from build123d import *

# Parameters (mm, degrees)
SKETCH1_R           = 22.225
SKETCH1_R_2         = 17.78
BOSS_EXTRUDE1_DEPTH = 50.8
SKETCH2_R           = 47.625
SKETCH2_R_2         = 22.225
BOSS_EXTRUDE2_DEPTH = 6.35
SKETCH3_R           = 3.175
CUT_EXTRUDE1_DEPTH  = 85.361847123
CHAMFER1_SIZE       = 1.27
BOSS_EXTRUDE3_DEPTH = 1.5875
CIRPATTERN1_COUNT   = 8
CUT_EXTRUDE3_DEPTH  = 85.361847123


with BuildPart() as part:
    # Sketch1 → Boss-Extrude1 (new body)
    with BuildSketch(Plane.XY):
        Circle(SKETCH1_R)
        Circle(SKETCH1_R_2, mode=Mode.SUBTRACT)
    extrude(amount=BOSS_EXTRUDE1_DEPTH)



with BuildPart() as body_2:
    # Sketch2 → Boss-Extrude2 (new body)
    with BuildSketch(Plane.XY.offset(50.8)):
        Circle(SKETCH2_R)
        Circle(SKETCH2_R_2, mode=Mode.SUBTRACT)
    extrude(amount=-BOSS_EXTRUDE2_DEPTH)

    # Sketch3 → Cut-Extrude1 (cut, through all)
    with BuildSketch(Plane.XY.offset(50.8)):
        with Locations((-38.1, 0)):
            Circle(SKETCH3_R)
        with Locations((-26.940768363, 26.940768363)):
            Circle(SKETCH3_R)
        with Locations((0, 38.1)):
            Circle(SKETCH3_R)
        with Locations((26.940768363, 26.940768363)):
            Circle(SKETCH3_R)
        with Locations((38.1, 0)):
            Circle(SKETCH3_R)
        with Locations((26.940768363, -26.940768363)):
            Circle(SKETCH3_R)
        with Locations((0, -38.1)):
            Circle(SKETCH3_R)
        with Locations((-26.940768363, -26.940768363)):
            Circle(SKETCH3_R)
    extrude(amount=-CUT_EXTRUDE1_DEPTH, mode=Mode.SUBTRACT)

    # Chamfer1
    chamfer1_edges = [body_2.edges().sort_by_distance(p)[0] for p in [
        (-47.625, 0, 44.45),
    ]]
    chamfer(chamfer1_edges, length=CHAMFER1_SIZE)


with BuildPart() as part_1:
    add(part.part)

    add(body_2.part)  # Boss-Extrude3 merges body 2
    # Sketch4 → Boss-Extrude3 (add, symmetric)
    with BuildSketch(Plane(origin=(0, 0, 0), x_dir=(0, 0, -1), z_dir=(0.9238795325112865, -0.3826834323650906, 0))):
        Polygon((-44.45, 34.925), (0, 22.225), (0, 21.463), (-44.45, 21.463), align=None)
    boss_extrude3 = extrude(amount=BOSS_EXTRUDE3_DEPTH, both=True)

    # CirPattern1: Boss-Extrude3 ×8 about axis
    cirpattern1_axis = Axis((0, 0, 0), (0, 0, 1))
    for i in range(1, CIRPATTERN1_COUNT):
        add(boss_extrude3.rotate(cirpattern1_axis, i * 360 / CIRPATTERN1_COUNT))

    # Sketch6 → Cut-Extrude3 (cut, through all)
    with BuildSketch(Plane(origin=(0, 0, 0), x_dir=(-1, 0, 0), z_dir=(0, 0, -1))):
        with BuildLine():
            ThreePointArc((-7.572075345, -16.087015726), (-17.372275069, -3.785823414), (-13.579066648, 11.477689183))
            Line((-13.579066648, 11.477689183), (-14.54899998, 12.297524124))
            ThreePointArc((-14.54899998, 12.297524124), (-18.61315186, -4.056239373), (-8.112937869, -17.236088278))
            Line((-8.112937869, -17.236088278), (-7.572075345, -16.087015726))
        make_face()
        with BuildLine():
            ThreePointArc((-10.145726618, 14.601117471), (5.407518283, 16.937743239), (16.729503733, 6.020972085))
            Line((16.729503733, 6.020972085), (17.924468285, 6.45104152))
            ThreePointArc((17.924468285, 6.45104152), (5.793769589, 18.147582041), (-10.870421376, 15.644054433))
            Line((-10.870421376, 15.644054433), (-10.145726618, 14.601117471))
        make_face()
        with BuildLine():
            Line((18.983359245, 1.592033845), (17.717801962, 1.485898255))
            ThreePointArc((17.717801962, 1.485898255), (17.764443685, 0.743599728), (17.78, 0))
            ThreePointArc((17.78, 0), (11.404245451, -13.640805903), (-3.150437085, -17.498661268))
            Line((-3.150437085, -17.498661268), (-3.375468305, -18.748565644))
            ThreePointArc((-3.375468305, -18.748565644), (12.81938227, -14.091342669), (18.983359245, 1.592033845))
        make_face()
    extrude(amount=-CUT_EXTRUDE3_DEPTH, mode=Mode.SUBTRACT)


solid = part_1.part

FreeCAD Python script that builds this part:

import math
import FreeCAD as App
import Part
import Sketcher

V = App.Vector
Q = App.Units.Quantity


def edges_at(feature, points):
    """Names of the edges that pass closest to the given points."""
    edges = feature.Shape.Edges
    near = lambda p: min(range(len(edges)), key=lambda i: edges[i].distToShape(Part.Vertex(*p))[0])
    return sorted({f"Edge{near(p) + 1}" for p in points})

doc = App.newDocument("Part")
body = doc.addObject("PartDesign::Body", "Body")

# Sketch on XY plane
sketch1 = body.newObject("Sketcher::SketchObject", "Sketch")
sketch1.AttachmentSupport = (doc.getObject("XY_Plane"), [""])
sketch1.MapMode = "FlatFace"
sketch1.addGeometry(Part.Circle(V(0, 0, 0), V(0, 0, 1), 22), False)
sketch1.addGeometry(Part.Circle(V(0, 0, 0), V(0, 0, 1), 18), False)
sketch1.addConstraint(Sketcher.Constraint("Coincident", 0, 3, -1, 1))
sketch1.addConstraint(Sketcher.Constraint("Coincident", 1, 3, -1, 1))
sketch1.addConstraint(Sketcher.Constraint("Diameter", 1, Q("1.4 in")))
sketch1.addConstraint(Sketcher.Constraint("Diameter", 0, Q("1.75 in")))
pad1 = body.newObject("PartDesign::Pad", "Pad")
pad1.Profile = sketch1
pad1.Length = Q("2 in")
body2 = doc.addObject("PartDesign::Body", "Body001")

# Sketch on XY plane
sketch2 = body2.newObject("Sketcher::SketchObject", "Sketch001")
sketch2.AttachmentSupport = (doc.getObject("XY_Plane001"), [""])
sketch2.MapMode = "FlatFace"
sketch2.AttachmentOffset = App.Placement(V(0, 0, 2 * 25.4), App.Rotation())
sketch2.addGeometry(Part.Circle(V(0, 0, 0), V(0, 0, 1), 48), False)
sketch2.addGeometry(Part.Circle(V(0, 0, 0), V(0, 0, 1), 22), False)
sketch2.addConstraint(Sketcher.Constraint("Coincident", 0, 3, -1, 1))
sketch2.addConstraint(Sketcher.Constraint("Coincident", 1, 3, -1, 1))
sketch2.addConstraint(Sketcher.Constraint("Diameter", 0, Q("3.75 in")))
sketch2.addConstraint(Sketcher.Constraint("Diameter", 1, Q("1.75 in")))
pad2 = body2.newObject("PartDesign::Pad", "Pad001")
pad2.Profile = sketch2
pad2.Length = Q("0.25 in")
pad2.Reversed = True

# Sketch on XY plane
sketch3 = body2.newObject("Sketcher::SketchObject", "Sketch002")
sketch3.AttachmentSupport = (doc.getObject("XY_Plane001"), [""])
sketch3.MapMode = "FlatFace"
sketch3.AttachmentOffset = App.Placement(V(0, 0, 2 * 25.4), App.Rotation())
sketch3.addGeometry(Part.Circle(V(-38.1, 0, 0), V(0, 0, 1), 3.2), False)
sketch3.addGeometry(Part.Circle(V(-26.9, 26.9, 0), V(0, 0, 1), 3.2), False)
sketch3.addGeometry(Part.Circle(V(0, 38.1, 0), V(0, 0, 1), 3.2), False)
sketch3.addGeometry(Part.Circle(V(26.9, 26.9, 0), V(0, 0, 1), 3.2), False)
sketch3.addGeometry(Part.Circle(V(38.1, 0, 0), V(0, 0, 1), 3.2), False)
sketch3.addGeometry(Part.Circle(V(26.9, -26.9, 0), V(0, 0, 1), 3.2), False)
sketch3.addGeometry(Part.Circle(V(0, -38.1, 0), V(0, 0, 1), 3.2), False)
sketch3.addGeometry(Part.Circle(V(-26.9, -26.9, 0), V(0, 0, 1), 3.2), False)
sketch3.addConstraint(Sketcher.Constraint("Equal", 0, 1))
sketch3.addConstraint(Sketcher.Constraint("Equal", 1, 2))
sketch3.addConstraint(Sketcher.Constraint("Equal", 2, 3))
sketch3.addConstraint(Sketcher.Constraint("Equal", 3, 4))
sketch3.addConstraint(Sketcher.Constraint("Equal", 4, 5))
sketch3.addConstraint(Sketcher.Constraint("Equal", 5, 6))
sketch3.addConstraint(Sketcher.Constraint("Equal", 6, 7))
sketch3.addConstraint(Sketcher.Constraint("Symmetric", 0, 3, 4, 3, -1, 1))
sketch3.addConstraint(Sketcher.Constraint("Symmetric", 1, 3, 5, 3, -1, 1))
sketch3.addConstraint(Sketcher.Constraint("Symmetric", 2, 3, 6, 3, -1, 1))
sketch3.addConstraint(Sketcher.Constraint("Symmetric", 3, 3, 7, 3, -1, 1))
sketch3.addConstraint(Sketcher.Constraint("Symmetric", 1, 3, 3, 3, -2))
sketch3.addConstraint(Sketcher.Constraint("PointOnObject", 0, 3, -1))
sketch3.addConstraint(Sketcher.Constraint("PointOnObject", 2, 3, -2))
sketch3.addConstraint(Sketcher.Constraint("Diameter", 0, Q("0.25 in")))
sketch3.addConstraint(Sketcher.Constraint("DistanceX", 0, 3, 4, 3, Q("3 in")))
sketch3.addConstraint(Sketcher.Constraint("DistanceY", -1, 1, 2, 3, Q("1.5 in")))
sketch3.addConstraint(Sketcher.Constraint("DistanceX", 1, 3, -1, 1, 26.940768))
sketch3.addConstraint(Sketcher.Constraint("DistanceY", -1, 1, 1, 3, 26.940768))
pocket1 = body2.newObject("PartDesign::Pocket", "Pocket")
pocket1.Profile = sketch3
pocket1.Type = "ThroughAll"
doc.recompute()

chamfer = body2.newObject("PartDesign::Chamfer", "Chamfer")
chamfer.Base = (pocket1, edges_at(pocket1, [(-47.625, 0, 44.45)]))
chamfer.Size = Q("0.05 in")
doc.recompute()

boolean = body.newObject("PartDesign::Boolean", "Boolean")
boolean.Type = "Fuse"
boolean.addObjects([body2])

# Sketch on an angled plane
sketch4 = body.newObject("Sketcher::SketchObject", "Sketch003")
sketch4.Placement = App.Placement(V(0, 0, 0), App.Rotation(V(0, 0, -1), V(0.382683432, 0.923879533, 0), V(0.923879533, -0.382683432, 0), "ZXY"))
sketch4.addGeometry(Part.LineSegment(V(0, 22.2, 0), V(-44.5, 34.9, 0)), False)
sketch4.addGeometry(Part.LineSegment(V(-44.5, 34.9, 0), V(-44.5, 21.5, 0)), False)
sketch4.addGeometry(Part.LineSegment(V(-44.5, 21.5, 0), V(0, 21.5, 0)), False)
sketch4.addGeometry(Part.LineSegment(V(0, 21.5, 0), V(0, 22.2, 0)), False)
sketch4.addConstraint(Sketcher.Constraint("Coincident", 0, 2, 1, 1))
sketch4.addConstraint(Sketcher.Constraint("Coincident", 1, 2, 2, 1))
sketch4.addConstraint(Sketcher.Constraint("Coincident", 2, 2, 3, 1))
sketch4.addConstraint(Sketcher.Constraint("Coincident", 3, 2, 0, 1))
sketch4.addConstraint(Sketcher.Constraint("Vertical", 1))
sketch4.addConstraint(Sketcher.Constraint("Horizontal", 2))
sketch4.addConstraint(Sketcher.Constraint("Vertical", 3))
sketch4.addConstraint(Sketcher.Constraint("PointOnObject", 2, 2, -2))
sketch4.addConstraint(Sketcher.Constraint("DistanceX", 2, 1, 2, 2, Q("1.75 in")))
sketch4.addConstraint(Sketcher.Constraint("DistanceY", 1, 2, 1, 1, Q("0.53 in")))
sketch4.addConstraint(Sketcher.Constraint("DistanceY", 3, 1, 3, 2, Q("0.03 in")))
sketch4.addConstraint(Sketcher.Constraint("DistanceY", -1, 1, 0, 2, Q("1.375 in")))
pad3 = body.newObject("PartDesign::Pad", "Pad002")
pad3.Profile = sketch4
pad3.Length = Q("0.125 in")
pad3.Midplane = True
doc.recompute()

polarpattern = body.newObject("PartDesign::PolarPattern", "PolarPattern")
polarpattern.Originals = [pad3]
polarpattern.Axis = (doc.getObject("Z_Axis"), [""])
polarpattern.Angle = 360
polarpattern.Occurrences = 8
body.Tip = polarpattern

# Sketch on XY plane
sketch5 = body.newObject("Sketcher::SketchObject", "Sketch004")
sketch5.AttachmentSupport = (doc.getObject("XY_Plane"), [""])
sketch5.MapMode = "FlatFace"
sketch5.addGeometry(Part.ArcOfCircle(Part.Circle(V(0, 0, 0), V(0, 0, 1), 17.8), math.radians(-65), math.radians(40)), False)
sketch5.addGeometry(Part.LineSegment(V(13.6, 11.5, 0), V(14.5, 12.3, 0)), False)
sketch5.addGeometry(Part.ArcOfCircle(Part.Circle(V(0, 0, 0), V(0, 0, 1), 19), math.radians(-65), math.radians(40)), False)
sketch5.addGeometry(Part.LineSegment(V(8.1, -17.2, 0), V(7.6, -16.1, 0)), False)
sketch5.addGeometry(Part.ArcOfCircle(Part.Circle(V(0, 0, 0), V(0, 0, 1), 17.8), math.radians(55), math.radians(160)), False)
sketch5.addGeometry(Part.LineSegment(V(-16.7, 6, 0), V(-17.9, 6.5, 0)), False)
sketch5.addGeometry(Part.ArcOfCircle(Part.Circle(V(0, 0, 0), V(0, 0, 1), 19.1), math.radians(55), math.radians(160)), False)
sketch5.addGeometry(Part.LineSegment(V(10.9, 15.6, 0), V(10.1, 14.6, 0)), False)
sketch5.addGeometry(Part.LineSegment(V(-19, 1.6, 0), V(-17.7, 1.5, 0)), False)
sketch5.addGeometry(Part.ArcOfCircle(Part.Circle(V(0, 0, 0), V(0, 0, 1), 17.8), math.radians(175.21), math.radians(180)), False)
sketch5.addGeometry(Part.ArcOfCircle(Part.Circle(V(0, 0, 0), V(0, 0, 1), 17.8), math.radians(-180), math.radians(-80)), False)
sketch5.addGeometry(Part.LineSegment(V(3.2, -17.5, 0), V(3.4, -18.7, 0)), False)
sketch5.addGeometry(Part.ArcOfCircle(Part.Circle(V(0, 0, 0), V(0, 0, 1), 19), math.radians(175), math.radians(280)), False)
sketch5.addConstraint(Sketcher.Constraint("Coincident", 0, 2, 1, 1))
sketch5.addConstraint(Sketcher.Constraint("Coincident", 1, 2, 2, 2))
sketch5.addConstraint(Sketcher.Constraint("Coincident", 2, 1, 3, 1))
sketch5.addConstraint(Sketcher.Constraint("Coincident", 3, 2, 0, 1))
sketch5.addConstraint(Sketcher.Constraint("Coincident", 4, 2, 5, 1))
sketch5.addConstraint(Sketcher.Constraint("Coincident", 5, 2, 6, 2))
sketch5.addConstraint(Sketcher.Constraint("Coincident", 6, 1, 7, 1))
sketch5.addConstraint(Sketcher.Constraint("Coincident", 7, 2, 4, 1))
sketch5.addConstraint(Sketcher.Constraint("Coincident", 8, 2, 9, 1))
sketch5.addConstraint(Sketcher.Constraint("Tangent", 9, 2, 10, 1))
sketch5.addConstraint(Sketcher.Constraint("Coincident", 10, 2, 11, 1))
sketch5.addConstraint(Sketcher.Constraint("Coincident", 11, 2, 12, 2))
sketch5.addConstraint(Sketcher.Constraint("Coincident", 12, 1, 8, 1))
sketch5.addConstraint(Sketcher.Constraint("Coincident", 0, 3, -1, 1))
sketch5.addConstraint(Sketcher.Constraint("Coincident", 2, 3, -1, 1))
sketch5.addConstraint(Sketcher.Constraint("Coincident", 4, 3, -1, 1))
sketch5.addConstraint(Sketcher.Constraint("Coincident", 6, 3, -1, 1))
sketch5.addConstraint(Sketcher.Constraint("Coincident", 9, 3, -1, 1))
sketch5.addConstraint(Sketcher.Constraint("Coincident", 12, 3, -1, 1))
sketch5.addConstraint(Sketcher.Constraint("Equal", 0, 4))
sketch5.addConstraint(Sketcher.Constraint("Equal", 2, 6))
sketch5.addConstraint(Sketcher.Constraint("Equal", 4, 9))
sketch5.addConstraint(Sketcher.Constraint("Equal", 9, 10))
sketch5.addConstraint(Sketcher.Constraint("Equal", 6, 12))
sketch5.addConstraint(Sketcher.Constraint("PointOnObject", 9, 2, -1))
sketch5.addConstraint(Sketcher.Constraint("Radius", 0, Q("0.7 in")))
sketch5.addConstraint(Sketcher.Constraint("Radius", 2, Q("0.75 in")))
sketch5.addConstraint(Sketcher.Constraint("DistanceY", -1, 1, 8, 2, Q("0.0584999 in")))
sketch5.addConstraint(Sketcher.Constraint("DistanceX", -1, 1, 1, 2, 14.549))
sketch5.addConstraint(Sketcher.Constraint("DistanceX", 8, 2, 4, 2, 0.988298))
sketch5.addConstraint(Sketcher.Constraint("DistanceX", 10, 2, 2, 1, 4.962501))
sketch5.addConstraint(Sketcher.Constraint("DistanceY", -1, 1, 0, 2, 11.477689))
sketch5.addConstraint(Sketcher.Constraint("DistanceY", 2, 1, -1, 1, 17.236088))
sketch5.addConstraint(Sketcher.Constraint("DistanceX", 5, 2, -1, 1, 17.924468))
sketch5.addConstraint(Sketcher.Constraint("DistanceX", -1, 1, 6, 1, 10.870421))
sketch5.addConstraint(Sketcher.Constraint("DistanceX", -1, 1, 11, 2, 3.375468))
sketch5.addConstraint(Sketcher.Constraint("DistanceX", 12, 1, -1, 1, 18.983359))
sketch5.addConstraint(Sketcher.Constraint("DistanceX", 7, 2, 0, 2, 3.43334))
sketch5.addConstraint(Sketcher.Constraint("DistanceX", 10, 2, 3, 2, 4.421638))
pocket2 = body.newObject("PartDesign::Pocket", "Pocket001")
pocket2.Profile = sketch5
pocket2.Type = "ThroughAll"
pocket2.Reversed = True

doc.recompute()
